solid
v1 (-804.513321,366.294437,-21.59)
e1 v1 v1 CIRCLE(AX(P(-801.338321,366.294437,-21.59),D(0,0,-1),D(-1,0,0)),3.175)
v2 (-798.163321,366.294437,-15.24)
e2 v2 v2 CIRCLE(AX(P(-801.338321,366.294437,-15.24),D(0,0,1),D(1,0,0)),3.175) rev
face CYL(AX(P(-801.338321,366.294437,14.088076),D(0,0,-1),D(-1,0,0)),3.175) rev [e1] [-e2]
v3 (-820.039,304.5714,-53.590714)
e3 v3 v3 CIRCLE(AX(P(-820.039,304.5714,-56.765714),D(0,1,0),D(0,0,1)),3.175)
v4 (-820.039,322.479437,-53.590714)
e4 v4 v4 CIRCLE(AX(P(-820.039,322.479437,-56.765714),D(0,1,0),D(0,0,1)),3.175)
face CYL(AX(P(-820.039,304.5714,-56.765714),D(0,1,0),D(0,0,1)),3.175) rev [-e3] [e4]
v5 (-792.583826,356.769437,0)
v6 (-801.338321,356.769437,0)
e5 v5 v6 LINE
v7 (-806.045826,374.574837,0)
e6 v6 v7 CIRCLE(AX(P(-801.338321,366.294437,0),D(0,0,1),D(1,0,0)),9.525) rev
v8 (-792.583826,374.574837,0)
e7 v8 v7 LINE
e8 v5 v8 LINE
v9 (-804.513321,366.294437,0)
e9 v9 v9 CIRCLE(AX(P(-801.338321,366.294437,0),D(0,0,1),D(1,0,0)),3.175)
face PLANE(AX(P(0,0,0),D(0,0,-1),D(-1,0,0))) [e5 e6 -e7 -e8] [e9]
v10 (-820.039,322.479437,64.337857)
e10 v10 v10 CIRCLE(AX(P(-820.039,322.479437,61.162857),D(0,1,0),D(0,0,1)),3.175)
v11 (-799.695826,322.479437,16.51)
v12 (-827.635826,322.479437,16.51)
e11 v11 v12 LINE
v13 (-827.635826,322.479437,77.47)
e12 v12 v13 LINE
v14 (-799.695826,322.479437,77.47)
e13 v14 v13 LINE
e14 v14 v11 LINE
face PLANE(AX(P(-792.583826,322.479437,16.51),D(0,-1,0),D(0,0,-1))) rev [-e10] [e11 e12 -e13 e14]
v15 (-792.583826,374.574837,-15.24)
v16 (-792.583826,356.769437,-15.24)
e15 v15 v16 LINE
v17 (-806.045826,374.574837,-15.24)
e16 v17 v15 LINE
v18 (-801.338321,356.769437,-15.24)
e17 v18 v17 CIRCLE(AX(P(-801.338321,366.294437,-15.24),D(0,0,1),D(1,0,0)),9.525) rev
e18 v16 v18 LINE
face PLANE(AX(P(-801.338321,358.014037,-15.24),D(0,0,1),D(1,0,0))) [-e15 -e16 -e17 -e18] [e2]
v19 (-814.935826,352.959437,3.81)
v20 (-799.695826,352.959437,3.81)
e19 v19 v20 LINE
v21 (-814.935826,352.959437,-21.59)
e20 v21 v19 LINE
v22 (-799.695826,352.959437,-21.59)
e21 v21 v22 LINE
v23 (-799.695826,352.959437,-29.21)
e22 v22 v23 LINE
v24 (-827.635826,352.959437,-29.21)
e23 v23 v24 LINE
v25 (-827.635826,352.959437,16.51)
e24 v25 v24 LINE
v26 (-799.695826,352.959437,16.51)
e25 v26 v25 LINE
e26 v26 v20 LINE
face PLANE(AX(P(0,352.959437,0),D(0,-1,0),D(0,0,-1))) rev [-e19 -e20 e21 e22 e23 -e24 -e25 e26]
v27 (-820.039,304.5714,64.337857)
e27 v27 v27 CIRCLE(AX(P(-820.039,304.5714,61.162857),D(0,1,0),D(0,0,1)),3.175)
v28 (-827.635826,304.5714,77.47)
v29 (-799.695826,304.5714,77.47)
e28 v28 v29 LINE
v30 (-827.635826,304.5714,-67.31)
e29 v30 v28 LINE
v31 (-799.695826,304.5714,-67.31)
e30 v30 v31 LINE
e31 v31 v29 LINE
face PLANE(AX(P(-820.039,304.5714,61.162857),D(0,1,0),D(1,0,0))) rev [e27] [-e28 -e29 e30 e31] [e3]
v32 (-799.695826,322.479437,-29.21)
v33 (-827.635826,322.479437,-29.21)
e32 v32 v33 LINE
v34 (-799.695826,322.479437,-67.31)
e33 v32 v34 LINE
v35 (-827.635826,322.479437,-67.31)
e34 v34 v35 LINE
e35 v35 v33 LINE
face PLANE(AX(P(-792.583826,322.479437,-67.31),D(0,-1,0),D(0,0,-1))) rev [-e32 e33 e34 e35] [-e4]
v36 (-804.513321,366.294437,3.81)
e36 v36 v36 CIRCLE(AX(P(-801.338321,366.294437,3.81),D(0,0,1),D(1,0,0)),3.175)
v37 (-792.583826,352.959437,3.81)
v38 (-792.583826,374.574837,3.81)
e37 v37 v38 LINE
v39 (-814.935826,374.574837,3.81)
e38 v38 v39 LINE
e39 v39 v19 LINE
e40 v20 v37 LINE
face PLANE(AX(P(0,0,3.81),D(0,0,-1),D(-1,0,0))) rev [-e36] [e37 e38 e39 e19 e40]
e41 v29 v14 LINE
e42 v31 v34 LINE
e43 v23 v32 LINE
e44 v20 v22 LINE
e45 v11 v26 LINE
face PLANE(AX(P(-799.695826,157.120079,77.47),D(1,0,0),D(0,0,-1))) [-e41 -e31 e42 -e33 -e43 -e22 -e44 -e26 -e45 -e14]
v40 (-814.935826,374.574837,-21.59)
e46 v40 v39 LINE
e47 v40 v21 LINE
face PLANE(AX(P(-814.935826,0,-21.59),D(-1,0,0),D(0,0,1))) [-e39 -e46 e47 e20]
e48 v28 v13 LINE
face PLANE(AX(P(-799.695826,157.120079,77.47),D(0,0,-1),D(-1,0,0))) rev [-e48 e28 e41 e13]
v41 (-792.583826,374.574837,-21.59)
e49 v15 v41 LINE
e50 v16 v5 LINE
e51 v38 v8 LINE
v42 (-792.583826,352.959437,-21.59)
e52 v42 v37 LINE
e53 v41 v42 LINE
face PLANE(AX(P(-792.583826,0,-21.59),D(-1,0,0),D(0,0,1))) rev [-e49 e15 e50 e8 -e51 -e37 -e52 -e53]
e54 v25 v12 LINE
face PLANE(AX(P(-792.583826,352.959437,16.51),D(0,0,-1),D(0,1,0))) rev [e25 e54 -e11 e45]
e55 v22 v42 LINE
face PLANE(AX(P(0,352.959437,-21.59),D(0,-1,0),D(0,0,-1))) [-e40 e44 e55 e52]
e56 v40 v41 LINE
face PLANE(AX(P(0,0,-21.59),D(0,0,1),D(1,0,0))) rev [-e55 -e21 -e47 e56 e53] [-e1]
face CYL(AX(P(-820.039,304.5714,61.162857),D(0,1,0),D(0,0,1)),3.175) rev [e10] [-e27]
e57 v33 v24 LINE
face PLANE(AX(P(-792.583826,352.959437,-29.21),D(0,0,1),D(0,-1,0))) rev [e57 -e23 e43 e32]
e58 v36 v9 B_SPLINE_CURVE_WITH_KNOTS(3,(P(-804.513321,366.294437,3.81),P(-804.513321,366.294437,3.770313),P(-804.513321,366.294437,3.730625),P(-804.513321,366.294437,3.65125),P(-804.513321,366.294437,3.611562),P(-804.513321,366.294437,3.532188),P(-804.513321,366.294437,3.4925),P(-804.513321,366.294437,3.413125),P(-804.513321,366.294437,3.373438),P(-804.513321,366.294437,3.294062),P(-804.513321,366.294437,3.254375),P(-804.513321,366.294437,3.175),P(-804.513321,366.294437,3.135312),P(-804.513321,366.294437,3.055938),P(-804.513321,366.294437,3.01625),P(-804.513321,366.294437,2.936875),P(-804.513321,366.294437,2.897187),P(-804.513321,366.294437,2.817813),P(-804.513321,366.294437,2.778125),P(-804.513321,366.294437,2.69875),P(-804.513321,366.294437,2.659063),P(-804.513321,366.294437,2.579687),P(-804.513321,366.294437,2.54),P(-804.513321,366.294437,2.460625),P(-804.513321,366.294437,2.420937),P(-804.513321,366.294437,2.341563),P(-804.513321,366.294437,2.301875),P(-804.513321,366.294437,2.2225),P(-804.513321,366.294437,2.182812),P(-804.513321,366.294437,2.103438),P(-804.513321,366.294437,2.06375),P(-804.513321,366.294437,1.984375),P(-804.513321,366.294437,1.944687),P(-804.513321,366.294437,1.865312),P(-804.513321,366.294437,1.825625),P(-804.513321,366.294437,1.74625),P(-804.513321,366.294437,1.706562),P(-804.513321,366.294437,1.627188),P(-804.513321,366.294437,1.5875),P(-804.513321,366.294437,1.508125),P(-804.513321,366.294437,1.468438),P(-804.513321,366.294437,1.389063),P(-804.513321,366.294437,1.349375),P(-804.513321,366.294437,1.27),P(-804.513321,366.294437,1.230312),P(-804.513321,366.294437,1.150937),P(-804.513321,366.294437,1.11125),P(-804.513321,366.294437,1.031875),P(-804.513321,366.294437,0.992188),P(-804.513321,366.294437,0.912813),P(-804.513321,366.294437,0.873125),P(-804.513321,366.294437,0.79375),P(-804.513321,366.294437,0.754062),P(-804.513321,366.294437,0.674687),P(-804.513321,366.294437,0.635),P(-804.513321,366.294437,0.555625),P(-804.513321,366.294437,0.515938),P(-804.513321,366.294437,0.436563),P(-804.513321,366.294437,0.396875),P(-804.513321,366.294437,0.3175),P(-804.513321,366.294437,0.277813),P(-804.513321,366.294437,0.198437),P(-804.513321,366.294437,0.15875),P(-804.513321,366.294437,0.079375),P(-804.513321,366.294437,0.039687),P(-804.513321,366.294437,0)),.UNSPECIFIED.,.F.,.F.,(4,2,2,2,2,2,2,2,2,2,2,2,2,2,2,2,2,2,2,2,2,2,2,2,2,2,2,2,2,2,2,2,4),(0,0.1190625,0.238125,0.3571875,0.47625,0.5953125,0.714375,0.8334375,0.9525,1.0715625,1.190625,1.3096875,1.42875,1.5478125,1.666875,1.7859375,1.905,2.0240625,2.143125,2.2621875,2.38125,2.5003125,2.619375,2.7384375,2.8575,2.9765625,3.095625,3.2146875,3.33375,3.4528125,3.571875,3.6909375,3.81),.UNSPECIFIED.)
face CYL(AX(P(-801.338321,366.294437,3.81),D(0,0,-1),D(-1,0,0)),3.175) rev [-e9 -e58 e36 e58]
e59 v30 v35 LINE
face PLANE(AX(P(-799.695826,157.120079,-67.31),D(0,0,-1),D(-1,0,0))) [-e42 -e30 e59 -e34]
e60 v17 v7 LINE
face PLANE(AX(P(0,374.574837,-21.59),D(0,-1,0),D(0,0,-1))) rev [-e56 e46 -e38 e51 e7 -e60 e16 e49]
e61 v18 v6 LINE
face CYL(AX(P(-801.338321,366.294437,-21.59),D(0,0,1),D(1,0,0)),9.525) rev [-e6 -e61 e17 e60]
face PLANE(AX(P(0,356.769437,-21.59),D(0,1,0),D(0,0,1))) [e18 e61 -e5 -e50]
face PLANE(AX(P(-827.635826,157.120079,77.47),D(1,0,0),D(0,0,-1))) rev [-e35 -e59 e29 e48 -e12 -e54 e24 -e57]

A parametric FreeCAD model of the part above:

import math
import FreeCAD as App
import Part
import Sketcher
Q = App.Units.Quantity

doc = App.newDocument("Part")
body = doc.addObject("PartDesign::Body", "Body")

sketch1 = body.newObject("Sketcher::SketchObject", "Sketch")
sketch1.AttachmentSupport = (doc.getObject("XY_Plane"), [""])
sketch1.MapMode = "FlatFace"
sketch1.addGeometry([
    Part.LineSegment(App.Vector(-792.583826, 352.959437, 0), App.Vector(-792.583826, 356.769437, 0)),
    Part.LineSegment(App.Vector(-792.583826, 356.769437, 0), App.Vector(-801.338321, 356.769437, 0)),
    Part.ArcOfCircle(Part.Circle(App.Vector(-801.338321, 366.294437, 0), App.Vector(0, 0, 1), 9.525), math.radians(-119.618739), math.radians(-90)),
    Part.ArcOfCircle(Part.Circle(App.Vector(-801.338321, 366.294437, 0), App.Vector(0, 0, 1), 9.525), math.radians(119.618739), math.radians(240.381261)),
    Part.LineSegment(App.Vector(-806.045826, 374.574837, 0), App.Vector(-814.935826, 374.574837, 0)),
    Part.LineSegment(App.Vector(-814.935826, 374.574837, 0), App.Vector(-814.935826, 352.959437, 0)),
    Part.LineSegment(App.Vector(-814.935826, 352.959437, 0), App.Vector(-792.583826, 352.959437, 0)),
], False)
sketch1.addConstraint([
    Sketcher.Constraint("Coincident", 0, 2, 1, 1),
    Sketcher.Constraint("Tangent", 1, 2, 2, 2),
    Sketcher.Constraint("Tangent", 2, 1, 3, 2),
    Sketcher.Constraint("Coincident", 3, 1, 4, 1),
    Sketcher.Constraint("Coincident", 4, 2, 5, 1),
    Sketcher.Constraint("Coincident", 5, 2, 6, 1),
    Sketcher.Constraint("Coincident", 6, 2, 0, 1),
    Sketcher.Constraint("Vertical", 0),
    Sketcher.Constraint("Horizontal", 1),
    Sketcher.Constraint("Horizontal", 4),
    Sketcher.Constraint("Vertical", 5),
    Sketcher.Constraint("Horizontal", 6),
    Sketcher.Constraint("Equal", 2, 3),
    Sketcher.Constraint("Vertical", 2, 1, 3, 1),
    Sketcher.Constraint("Radius", 2, Q("0.375 in")),
    Sketcher.Constraint("DistanceX", 4, 2, 4, 1, Q("0.35 in")),
    Sketcher.Constraint("DistanceX", 6, 1, 6, 2, Q("0.88 in")),
    Sketcher.Constraint("DistanceY", 0, 1, 0, 2, Q("0.15 in")),
    Sketcher.Constraint("DistanceY", 5, 2, 5, 1, Q("0.851 in")),
    Sketcher.Constraint("DistanceX", 2, 3, -1, 1, Q("801.338321 mm")),
    Sketcher.Constraint("DistanceY", -1, 1, 2, 3, Q("366.294437 mm")),
])
pad1 = body.newObject("PartDesign::Pad", "Pad")
pad1.Profile = sketch1
pad1.Length = Q("0.85 in")
pad1.Reversed = True

sketch2 = body.newObject("Sketcher::SketchObject", "Sketch001")
sketch2.AttachmentSupport = (doc.getObject("XY_Plane"), [""])
sketch2.MapMode = "FlatFace"
sketch2.addGeometry([
    Part.LineSegment(App.Vector(-814.935826, 374.574837, 0), App.Vector(-814.935826, 352.959437, 0)),
    Part.LineSegment(App.Vector(-814.935826, 352.959437, 0), App.Vector(-792.583826, 352.959437, 0)),
    Part.LineSegment(App.Vector(-792.583826, 352.959437, 0), App.Vector(-792.583826, 374.574837, 0)),
    Part.LineSegment(App.Vector(-792.583826, 374.574837, 0), App.Vector(-814.935826, 374.574837, 0)),
    Part.Circle(App.Vector(-801.338321, 366.294437, 0), App.Vector(0, 0, 1), 3.175),
], False)
sketch2.addConstraint([
    Sketcher.Constraint("Coincident", 0, 2, 1, 1),
    Sketcher.Constraint("Coincident", 1, 2, 2, 1),
    Sketcher.Constraint("Coincident", 2, 2, 3, 1),
    Sketcher.Constraint("Coincident", 3, 2, 0, 1),
    Sketcher.Constraint("Vertical", 0),
    Sketcher.Constraint("Horizontal", 1),
    Sketcher.Constraint("Vertical", 2),
    Sketcher.Constraint("Horizontal", 3),
    Sketcher.Constraint("Diameter", 4, Q("0.25 in")),
    Sketcher.Constraint("DistanceX", 1, 1, 1, 2, Q("0.88 in")),
    Sketcher.Constraint("DistanceY", 0, 2, 0, 1, Q("0.851 in")),
    Sketcher.Constraint("DistanceY", 0, 2, 4, 3, Q("0.525 in")),
    Sketcher.Constraint("DistanceX", 4, 3, -1, 1, Q("801.338321 mm")),
    Sketcher.Constraint("DistanceY", -1, 1, 4, 3, Q("366.294437 mm")),
    Sketcher.Constraint("DistanceX", 0, 2, -1, 1, Q("814.935826 mm")),
])
pad2 = body.newObject("PartDesign::Pad", "Pad001")
pad2.Profile = sketch2
pad2.Length = Q("0.15 in")

sketch3 = body.newObject("Sketcher::SketchObject", "Sketch002")
sketch3.AttachmentSupport = (doc.getObject("XY_Plane"), [""])
sketch3.MapMode = "FlatFace"
sketch3.AttachmentOffset = App.Placement(App.Vector(0, 0, -0.85 * 25.4), App.Rotation())
sketch3.addGeometry([
    Part.LineSegment(App.Vector(-792.583826, 374.574837, 0), App.Vector(-792.583826, 356.769437, 0)),
    Part.LineSegment(App.Vector(-792.583826, 356.769437, 0), App.Vector(-801.338321, 356.769437, 0)),
    Part.ArcOfCircle(Part.Circle(App.Vector(-801.338321, 366.294437, 0), App.Vector(0, 0, 1), 9.525), math.radians(119.618739), math.radians(270)),
    Part.LineSegment(App.Vector(-806.045826, 374.574837, 0), App.Vector(-792.583826, 374.574837, 0)),
    Part.Circle(App.Vector(-801.338321, 366.294437, 0), App.Vector(0, 0, 1), 3.175),
], False)
sketch3.addConstraint([
    Sketcher.Constraint("Coincident", 0, 2, 1, 1),
    Sketcher.Constraint("Tangent", 1, 2, 2, 2),
    Sketcher.Constraint("Coincident", 2, 1, 3, 1),
    Sketcher.Constraint("Coincident", 3, 2, 0, 1),
    Sketcher.Constraint("Vertical", 0),
    Sketcher.Constraint("Horizontal", 1),
    Sketcher.Constraint("Horizontal", 3),
    Sketcher.Constraint("Coincident", 4, 3, 2, 3),
    Sketcher.Constraint("Diameter", 4, Q("0.25 in")),
    Sketcher.Constraint("Radius", 2, Q("0.375 in")),
    Sketcher.Constraint("DistanceX", 3, 1, 3, 2, Q("0.53 in")),
    Sketcher.Constraint("DistanceY", 0, 2, 0, 1, Q("0.701 in")),
    Sketcher.Constraint("DistanceX", 2, 3, -1, 1, Q("801.338321 mm")),
    Sketcher.Constraint("DistanceY", -1, 1, 2, 3, Q("366.294437 mm")),
])
pad3 = body.newObject("PartDesign::Pad", "Pad002")
pad3.Profile = sketch3
pad3.Length = Q("0.25 in")

sketch4 = body.newObject("Sketcher::SketchObject", "Sketch003")
sketch4.AttachmentSupport = (doc.getObject("XZ_Plane"), [""])
sketch4.MapMode = "FlatFace"
sketch4.AttachmentOffset = App.Placement(App.Vector(0, 0, -352.959437), App.Rotation())
sketch4.addGeometry([
    Part.LineSegment(App.Vector(-827.635826, 77.47, 0), App.Vector(-827.635826, -67.31, 0)),
    Part.LineSegment(App.Vector(-827.635826, -67.31, 0), App.Vector(-799.695826, -67.31, 0)),
    Part.LineSegment(App.Vector(-799.695826, -67.31, 0), App.Vector(-799.695826, 77.47, 0)),
    Part.LineSegment(App.Vector(-799.695826, 77.47, 0), App.Vector(-827.635826, 77.47, 0)),
], False)
sketch4.addConstraint([
    Sketcher.Constraint("Coincident", 0, 2, 1, 1),
    Sketcher.Constraint("Coincident", 1, 2, 2, 1),
    Sketcher.Constraint("Coincident", 2, 2, 3, 1),
    Sketcher.Constraint("Coincident", 3, 2, 0, 1),
    Sketcher.Constraint("Vertical", 0),
    Sketcher.Constraint("Horizontal", 1),
    Sketcher.Constraint("Vertical", 2),
    Sketcher.Constraint("Horizontal", 3),
    Sketcher.Constraint("DistanceX", 1, 1, 1, 2, Q("1.1 in")),
    Sketcher.Constraint("DistanceY", 0, 2, 0, 1, Q("5.7 in")),
    Sketcher.Constraint("DistanceY", 0, 2, -1, 1, Q("2.65 in")),
    Sketcher.Constraint("DistanceX", 0, 2, -1, 1, Q("827.635826 mm")),
])
pad4 = body.newObject("PartDesign::Pad", "Pad003")
pad4.Profile = sketch4
pad4.Length = 48.388037

sketch5 = body.newObject("Sketcher::SketchObject", "Sketch004")
sketch5.AttachmentSupport = (doc.getObject("YZ_Plane"), [""])
sketch5.MapMode = "FlatFace"
sketch5.AttachmentOffset = App.Placement(App.Vector(0, 0, -827.635826), App.Rotation())
sketch5.addGeometry([
    Part.LineSegment(App.Vector(352.959437, -67.31, 0), App.Vector(322.479437, -67.31, 0)),
    Part.LineSegment(App.Vector(322.479437, -67.31, 0), App.Vector(322.479437, -29.21, 0)),
    Part.LineSegment(App.Vector(322.479437, -29.21, 0), App.Vector(352.959437, -29.21, 0)),
    Part.LineSegment(App.Vector(352.959437, -29.21, 0), App.Vector(352.959437, -67.31, 0)),
    Part.LineSegment(App.Vector(352.959437, 16.51, 0), App.Vector(322.479437, 16.51, 0)),
    Part.LineSegment(App.Vector(322.479437, 16.51, 0), App.Vector(322.479437, 77.47, 0)),
    Part.LineSegment(App.Vector(322.479437, 77.47, 0), App.Vector(352.959437, 77.47, 0)),
    Part.LineSegment(App.Vector(352.959437, 77.47, 0), App.Vector(352.959437, 16.51, 0)),
], False)
sketch5.addConstraint([
    Sketcher.Constraint("Coincident", 0, 2, 1, 1),
    Sketcher.Constraint("Coincident", 1, 2, 2, 1),
    Sketcher.Constraint("Coincident", 2, 2, 3, 1),
    Sketcher.Constraint("Coincident", 3, 2, 0, 1),
    Sketcher.Constraint("Coincident", 4, 2, 5, 1),
    Sketcher.Constraint("Coincident", 5, 2, 6, 1),
    Sketcher.Constraint("Coincident", 6, 2, 7, 1),
    Sketcher.Constraint("Coincident", 7, 2, 4, 1),
    Sketcher.Constraint("Horizontal", 0),
    Sketcher.Constraint("Vertical", 1),
    Sketcher.Constraint("Horizontal", 2),
    Sketcher.Constraint("Vertical", 3),
    Sketcher.Constraint("Horizontal", 4),
    Sketcher.Constraint("Vertical", 5),
    Sketcher.Constraint("Horizontal", 6),
    Sketcher.Constraint("Vertical", 7),
    Sketcher.Constraint("Vertical", 1, 2, 4, 2),
    Sketcher.Constraint("Vertical", 3, 2, 6, 2),
    Sketcher.Constraint("DistanceX", 0, 2, 0, 1, Q("1.2 in")),
    Sketcher.Constraint("DistanceY", 1, 1, 1, 2, Q("1.5 in")),
    Sketcher.Constraint("DistanceY", 5, 1, 5, 2, Q("2.4 in")),
    Sketcher.Constraint("DistanceY", 1, 2, 4, 2, Q("1.8 in")),
    Sketcher.Constraint("DistanceY", 0, 2, -1, 1, Q("2.65 in")),
    Sketcher.Constraint("DistanceX", -1, 1, 0, 2, Q("322.479437 mm")),
])
pocket1 = body.newObject("PartDesign::Pocket", "Pocket")
pocket1.Profile = sketch5
pocket1.Type = "ThroughAll"
pocket1.Reversed = True

sketch6 = body.newObject("Sketcher::SketchObject", "Sketch005")
sketch6.AttachmentSupport = (doc.getObject("XZ_Plane"), [""])
sketch6.MapMode = "FlatFace"
sketch6.AttachmentOffset = App.Placement(App.Vector(0, 0, -322.479437), App.Rotation())
sketch6.addGeometry([
    Part.Circle(App.Vector(-820.039, -56.765714, 0), App.Vector(0, 0, 1), 3.175),
    Part.Circle(App.Vector(-820.039, 61.162857, 0), App.Vector(0, 0, 1), 3.175),
], False)
sketch6.addConstraint([
    Sketcher.Constraint("Equal", 0, 1),
    Sketcher.Constraint("Vertical", 0, 3, 1, 3),
    Sketcher.Constraint("Diameter", 0, Q("0.25 in")),
    Sketcher.Constraint("DistanceX", 0, 3, -1, 1, Q("32.285 in")),
    Sketcher.Constraint("DistanceY", 0, 3, 1, 3, Q("117.928571 mm")),
    Sketcher.Constraint("DistanceY", 0, 3, -1, 1, Q("56.765714 mm")),
])
pocket2 = body.newObject("PartDesign::Pocket", "Pocket001")
pocket2.Profile = sketch6
pocket2.Type = "ThroughAll"
pocket2.Reversed = True

doc.recompute()
